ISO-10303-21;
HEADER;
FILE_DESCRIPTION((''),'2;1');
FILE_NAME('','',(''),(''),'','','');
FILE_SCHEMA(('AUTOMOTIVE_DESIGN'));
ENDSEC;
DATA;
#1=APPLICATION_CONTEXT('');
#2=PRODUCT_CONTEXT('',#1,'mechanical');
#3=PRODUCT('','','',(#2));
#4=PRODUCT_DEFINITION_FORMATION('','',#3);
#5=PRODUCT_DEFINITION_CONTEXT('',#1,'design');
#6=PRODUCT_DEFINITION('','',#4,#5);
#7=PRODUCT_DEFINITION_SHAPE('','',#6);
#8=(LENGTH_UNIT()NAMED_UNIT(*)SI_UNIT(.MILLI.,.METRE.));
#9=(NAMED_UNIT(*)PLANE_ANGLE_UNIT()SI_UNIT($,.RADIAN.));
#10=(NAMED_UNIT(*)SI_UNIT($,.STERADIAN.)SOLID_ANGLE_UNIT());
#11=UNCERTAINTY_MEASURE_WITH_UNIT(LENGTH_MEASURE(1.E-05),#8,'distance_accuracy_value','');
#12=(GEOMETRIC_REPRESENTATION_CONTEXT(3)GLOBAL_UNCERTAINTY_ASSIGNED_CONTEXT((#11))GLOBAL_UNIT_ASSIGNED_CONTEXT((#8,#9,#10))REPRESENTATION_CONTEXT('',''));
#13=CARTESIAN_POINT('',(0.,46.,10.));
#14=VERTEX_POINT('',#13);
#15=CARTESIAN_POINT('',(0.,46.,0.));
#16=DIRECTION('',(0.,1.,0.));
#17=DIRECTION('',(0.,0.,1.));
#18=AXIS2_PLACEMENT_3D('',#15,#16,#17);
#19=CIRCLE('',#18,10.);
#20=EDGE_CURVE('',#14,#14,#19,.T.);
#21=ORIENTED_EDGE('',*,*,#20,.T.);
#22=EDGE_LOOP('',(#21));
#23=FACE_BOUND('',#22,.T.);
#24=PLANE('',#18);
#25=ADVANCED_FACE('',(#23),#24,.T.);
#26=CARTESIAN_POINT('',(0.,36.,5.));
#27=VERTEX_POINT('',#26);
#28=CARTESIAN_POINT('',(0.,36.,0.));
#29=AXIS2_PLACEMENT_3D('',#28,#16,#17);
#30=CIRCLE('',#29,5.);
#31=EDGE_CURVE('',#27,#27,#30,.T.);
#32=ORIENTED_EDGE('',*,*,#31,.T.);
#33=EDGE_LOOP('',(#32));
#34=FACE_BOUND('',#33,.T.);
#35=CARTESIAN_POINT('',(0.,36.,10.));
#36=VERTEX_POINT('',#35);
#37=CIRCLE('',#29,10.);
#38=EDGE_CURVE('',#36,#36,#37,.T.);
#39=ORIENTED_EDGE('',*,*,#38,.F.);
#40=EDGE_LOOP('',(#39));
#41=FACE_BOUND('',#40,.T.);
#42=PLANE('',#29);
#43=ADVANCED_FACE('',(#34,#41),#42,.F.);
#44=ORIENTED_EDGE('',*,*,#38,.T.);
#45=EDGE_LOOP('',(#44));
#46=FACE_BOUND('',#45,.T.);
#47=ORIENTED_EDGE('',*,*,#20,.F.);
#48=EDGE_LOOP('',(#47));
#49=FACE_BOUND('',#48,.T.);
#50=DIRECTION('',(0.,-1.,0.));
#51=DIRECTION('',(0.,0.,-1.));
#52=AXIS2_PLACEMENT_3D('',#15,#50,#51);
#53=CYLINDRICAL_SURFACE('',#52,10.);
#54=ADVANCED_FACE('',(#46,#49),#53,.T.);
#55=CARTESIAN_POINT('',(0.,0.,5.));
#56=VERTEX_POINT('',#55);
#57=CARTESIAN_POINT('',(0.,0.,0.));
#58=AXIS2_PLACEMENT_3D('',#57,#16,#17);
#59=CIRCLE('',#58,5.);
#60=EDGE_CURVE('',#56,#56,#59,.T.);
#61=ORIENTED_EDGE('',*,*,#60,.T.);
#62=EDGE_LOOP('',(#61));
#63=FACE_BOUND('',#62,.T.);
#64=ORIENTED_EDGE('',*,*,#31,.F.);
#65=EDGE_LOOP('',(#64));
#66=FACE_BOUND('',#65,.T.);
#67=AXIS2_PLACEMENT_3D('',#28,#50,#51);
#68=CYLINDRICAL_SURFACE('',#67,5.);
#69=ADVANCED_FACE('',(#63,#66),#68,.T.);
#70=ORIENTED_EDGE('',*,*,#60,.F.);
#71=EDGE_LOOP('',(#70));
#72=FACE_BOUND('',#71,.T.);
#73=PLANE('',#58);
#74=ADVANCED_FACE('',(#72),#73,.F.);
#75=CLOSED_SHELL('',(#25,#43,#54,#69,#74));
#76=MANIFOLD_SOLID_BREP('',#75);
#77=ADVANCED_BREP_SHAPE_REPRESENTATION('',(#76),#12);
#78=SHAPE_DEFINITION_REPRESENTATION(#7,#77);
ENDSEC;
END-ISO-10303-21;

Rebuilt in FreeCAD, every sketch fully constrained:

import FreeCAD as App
import Part
import Sketcher
from FreeCAD import Vector

doc = App.newDocument("Part")
params = doc.addObject("Spreadsheet::Sheet", "Params")
for row, (alias, value) in enumerate([
    ("sketch1_diameter", "10 mm"),
    ("pad1_length", "36 mm"),
    ("sketch2_diameter", "20 mm"),
    ("pad2_length", "10 mm"),
], start=1):
    params.set(f"A{row}", alias)
    params.set(f"B{row}", "=" + value)
    params.setAlias(f"B{row}", alias)

body = doc.addObject("PartDesign::Body", "Body")

sketch1 = body.newObject("Sketcher::SketchObject", "Sketch")
sketch1.AttachmentSupport = (doc.getObject("XZ_Plane"), [""])
sketch1.MapMode = "FlatFace"
sketch1.addGeometry(Part.Circle(Vector(0, 0, 0), Vector(0, 0, 1), 5), False)
sketch1.addConstraint(Sketcher.Constraint("Coincident", 0, 3, -1, 1))
sketch1.addConstraint(Sketcher.Constraint("Diameter", 0, 10.0))
sketch1.setExpression("Constraints[1]", "Params.sketch1_diameter")
pad1 = body.newObject("PartDesign::Pad", "Pad")
pad1.Profile = sketch1
pad1.setExpression("Length", "Params.pad1_length")
pad1.Reversed = True

sketch2 = body.newObject("Sketcher::SketchObject", "Sketch001")
sketch2.AttachmentSupport = (doc.getObject("XZ_Plane"), [""])
sketch2.MapMode = "FlatFace"
sketch2.AttachmentOffset = App.Placement(Vector(0, 0, -36), App.Rotation())
sketch2.addGeometry(Part.Circle(Vector(0, 0, 0), Vector(0, 0, 1), 10), False)
sketch2.addConstraint(Sketcher.Constraint("Coincident", 0, 3, -1, 1))
sketch2.addConstraint(Sketcher.Constraint("Diameter", 0, 20.0))
sketch2.setExpression("Constraints[1]", "Params.sketch2_diameter")
pad2 = body.newObject("PartDesign::Pad", "Pad001")
pad2.Profile = sketch2
pad2.setExpression("Length", "Params.pad2_length")
pad2.Reversed = True

doc.recompute()
